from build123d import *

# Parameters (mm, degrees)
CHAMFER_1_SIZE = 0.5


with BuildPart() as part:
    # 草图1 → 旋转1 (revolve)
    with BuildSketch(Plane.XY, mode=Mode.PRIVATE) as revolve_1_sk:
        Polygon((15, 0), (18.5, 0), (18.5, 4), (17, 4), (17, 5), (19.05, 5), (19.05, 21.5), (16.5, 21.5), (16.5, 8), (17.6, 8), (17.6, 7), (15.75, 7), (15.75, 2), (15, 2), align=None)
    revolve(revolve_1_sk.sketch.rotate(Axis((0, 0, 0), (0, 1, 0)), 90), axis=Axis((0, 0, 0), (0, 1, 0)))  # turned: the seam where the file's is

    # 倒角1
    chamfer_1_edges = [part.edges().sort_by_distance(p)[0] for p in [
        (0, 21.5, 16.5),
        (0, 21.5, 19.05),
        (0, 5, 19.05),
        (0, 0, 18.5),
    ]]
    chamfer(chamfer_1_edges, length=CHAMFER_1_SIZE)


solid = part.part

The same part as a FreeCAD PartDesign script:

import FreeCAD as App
import Part
import Sketcher

V = App.Vector
Q = App.Units.Quantity


def edges_at(feature, points):
    """Names of the edges that pass closest to the given points."""
    edges = feature.Shape.Edges
    near = lambda p: min(range(len(edges)), key=lambda i: edges[i].distToShape(Part.Vertex(*p))[0])
    return sorted({f"Edge{near(p) + 1}" for p in points})


def add_polygon(sketch, points):
    """Adds a closed chain of lines whose ends are joined by coincident constraints."""
    first, n = sketch.GeometryCount, len(points)
    for a, b in zip(points, points[1:] + points[:1]):
        sketch.addGeometry(Part.LineSegment(App.Vector(*a, 0), App.Vector(*b, 0)), False)
    for i in range(n):
        sketch.addConstraint(Sketcher.Constraint("Coincident", first + i, 2, first + (i + 1) % n, 1))

doc = App.newDocument("Part")
body = doc.addObject("PartDesign::Body", "Body")

# Sketch on XY plane
sketch1 = body.newObject("Sketcher::SketchObject", "Sketch")
sketch1.AttachmentSupport = (doc.getObject("XY_Plane"), [""])
sketch1.MapMode = "FlatFace"
add_polygon(sketch1, [(15, 0), (18.5, 0), (18.5, 4), (17, 4), (17, 5), (19.05, 5), (19.05, 21.5), (16.5, 21.5), (16.5, 8), (17.6, 8), (17.6, 7), (15.75, 7), (15.75, 2), (15, 2)])  # lines 0-13
sketch1.addConstraint(Sketcher.Constraint("Horizontal", 0))
sketch1.addConstraint(Sketcher.Constraint("Vertical", 1))
sketch1.addConstraint(Sketcher.Constraint("Horizontal", 2))
sketch1.addConstraint(Sketcher.Constraint("Vertical", 3))
sketch1.addConstraint(Sketcher.Constraint("Horizontal", 4))
sketch1.addConstraint(Sketcher.Constraint("Vertical", 5))
sketch1.addConstraint(Sketcher.Constraint("Horizontal", 6))
sketch1.addConstraint(Sketcher.Constraint("Vertical", 7))
sketch1.addConstraint(Sketcher.Constraint("Horizontal", 8))
sketch1.addConstraint(Sketcher.Constraint("Vertical", 9))
sketch1.addConstraint(Sketcher.Constraint("Horizontal", 10))
sketch1.addConstraint(Sketcher.Constraint("Vertical", 11))
sketch1.addConstraint(Sketcher.Constraint("Horizontal", 12))
sketch1.addConstraint(Sketcher.Constraint("Vertical", 13))
sketch1.addConstraint(Sketcher.Constraint("PointOnObject", 0, 2, -1))
sketch1.addConstraint(Sketcher.Constraint("Equal", 3, 9))
sketch1.addConstraint(Sketcher.Constraint("DistanceY", 1, 1, 1, 2, Q("4 mm")))
sketch1.addConstraint(Sketcher.Constraint("DistanceY", 3, 1, 3, 2, Q("1 mm")))
sketch1.addConstraint(Sketcher.Constraint("DistanceY", 11, 2, 11, 1, Q("5 mm")))
sketch1.addConstraint(Sketcher.Constraint("DistanceY", 13, 2, 13, 1, Q("2 mm")))
sketch1.addConstraint(Sketcher.Constraint("DistanceX", 0, 1, 0, 2, Q("3.5 mm")))
sketch1.addConstraint(Sketcher.Constraint("DistanceX", 2, 2, 2, 1, Q("1.5 mm")))
sketch1.addConstraint(Sketcher.Constraint("DistanceX", 8, 1, 8, 2, Q("1.1 mm")))
sketch1.addConstraint(Sketcher.Constraint("DistanceY", 5, 1, 5, 2, Q("16.5 mm")))
sketch1.addConstraint(Sketcher.Constraint("DistanceX", -1, 1, 2, 2, Q("17 mm")))
sketch1.addConstraint(Sketcher.Constraint("DistanceX", 6, 2, 1, 2, Q("2 mm")))
sketch1.addConstraint(Sketcher.Constraint("DistanceX", 4, 1, 4, 2, Q("2.05 mm")))
sketch1.addConstraint(Sketcher.Constraint("DistanceX", 10, 2, 10, 1, Q("1.85 mm")))
revolution = body.newObject("PartDesign::Revolution", "Revolution")
revolution.Profile = sketch1
revolution.ReferenceAxis = (sketch1, ["V_Axis"])
revolution.Angle = 360
doc.recompute()

chamfer = body.newObject("PartDesign::Chamfer", "Chamfer")
chamfer.Base = (revolution, edges_at(revolution, [
    (0, 21.5, 16.5),
    (0, 21.5, 19.05),
    (0, 5, 19.05),
    (0, 0, 18.5),
]))
chamfer.Size = 0.5

doc.recompute()
